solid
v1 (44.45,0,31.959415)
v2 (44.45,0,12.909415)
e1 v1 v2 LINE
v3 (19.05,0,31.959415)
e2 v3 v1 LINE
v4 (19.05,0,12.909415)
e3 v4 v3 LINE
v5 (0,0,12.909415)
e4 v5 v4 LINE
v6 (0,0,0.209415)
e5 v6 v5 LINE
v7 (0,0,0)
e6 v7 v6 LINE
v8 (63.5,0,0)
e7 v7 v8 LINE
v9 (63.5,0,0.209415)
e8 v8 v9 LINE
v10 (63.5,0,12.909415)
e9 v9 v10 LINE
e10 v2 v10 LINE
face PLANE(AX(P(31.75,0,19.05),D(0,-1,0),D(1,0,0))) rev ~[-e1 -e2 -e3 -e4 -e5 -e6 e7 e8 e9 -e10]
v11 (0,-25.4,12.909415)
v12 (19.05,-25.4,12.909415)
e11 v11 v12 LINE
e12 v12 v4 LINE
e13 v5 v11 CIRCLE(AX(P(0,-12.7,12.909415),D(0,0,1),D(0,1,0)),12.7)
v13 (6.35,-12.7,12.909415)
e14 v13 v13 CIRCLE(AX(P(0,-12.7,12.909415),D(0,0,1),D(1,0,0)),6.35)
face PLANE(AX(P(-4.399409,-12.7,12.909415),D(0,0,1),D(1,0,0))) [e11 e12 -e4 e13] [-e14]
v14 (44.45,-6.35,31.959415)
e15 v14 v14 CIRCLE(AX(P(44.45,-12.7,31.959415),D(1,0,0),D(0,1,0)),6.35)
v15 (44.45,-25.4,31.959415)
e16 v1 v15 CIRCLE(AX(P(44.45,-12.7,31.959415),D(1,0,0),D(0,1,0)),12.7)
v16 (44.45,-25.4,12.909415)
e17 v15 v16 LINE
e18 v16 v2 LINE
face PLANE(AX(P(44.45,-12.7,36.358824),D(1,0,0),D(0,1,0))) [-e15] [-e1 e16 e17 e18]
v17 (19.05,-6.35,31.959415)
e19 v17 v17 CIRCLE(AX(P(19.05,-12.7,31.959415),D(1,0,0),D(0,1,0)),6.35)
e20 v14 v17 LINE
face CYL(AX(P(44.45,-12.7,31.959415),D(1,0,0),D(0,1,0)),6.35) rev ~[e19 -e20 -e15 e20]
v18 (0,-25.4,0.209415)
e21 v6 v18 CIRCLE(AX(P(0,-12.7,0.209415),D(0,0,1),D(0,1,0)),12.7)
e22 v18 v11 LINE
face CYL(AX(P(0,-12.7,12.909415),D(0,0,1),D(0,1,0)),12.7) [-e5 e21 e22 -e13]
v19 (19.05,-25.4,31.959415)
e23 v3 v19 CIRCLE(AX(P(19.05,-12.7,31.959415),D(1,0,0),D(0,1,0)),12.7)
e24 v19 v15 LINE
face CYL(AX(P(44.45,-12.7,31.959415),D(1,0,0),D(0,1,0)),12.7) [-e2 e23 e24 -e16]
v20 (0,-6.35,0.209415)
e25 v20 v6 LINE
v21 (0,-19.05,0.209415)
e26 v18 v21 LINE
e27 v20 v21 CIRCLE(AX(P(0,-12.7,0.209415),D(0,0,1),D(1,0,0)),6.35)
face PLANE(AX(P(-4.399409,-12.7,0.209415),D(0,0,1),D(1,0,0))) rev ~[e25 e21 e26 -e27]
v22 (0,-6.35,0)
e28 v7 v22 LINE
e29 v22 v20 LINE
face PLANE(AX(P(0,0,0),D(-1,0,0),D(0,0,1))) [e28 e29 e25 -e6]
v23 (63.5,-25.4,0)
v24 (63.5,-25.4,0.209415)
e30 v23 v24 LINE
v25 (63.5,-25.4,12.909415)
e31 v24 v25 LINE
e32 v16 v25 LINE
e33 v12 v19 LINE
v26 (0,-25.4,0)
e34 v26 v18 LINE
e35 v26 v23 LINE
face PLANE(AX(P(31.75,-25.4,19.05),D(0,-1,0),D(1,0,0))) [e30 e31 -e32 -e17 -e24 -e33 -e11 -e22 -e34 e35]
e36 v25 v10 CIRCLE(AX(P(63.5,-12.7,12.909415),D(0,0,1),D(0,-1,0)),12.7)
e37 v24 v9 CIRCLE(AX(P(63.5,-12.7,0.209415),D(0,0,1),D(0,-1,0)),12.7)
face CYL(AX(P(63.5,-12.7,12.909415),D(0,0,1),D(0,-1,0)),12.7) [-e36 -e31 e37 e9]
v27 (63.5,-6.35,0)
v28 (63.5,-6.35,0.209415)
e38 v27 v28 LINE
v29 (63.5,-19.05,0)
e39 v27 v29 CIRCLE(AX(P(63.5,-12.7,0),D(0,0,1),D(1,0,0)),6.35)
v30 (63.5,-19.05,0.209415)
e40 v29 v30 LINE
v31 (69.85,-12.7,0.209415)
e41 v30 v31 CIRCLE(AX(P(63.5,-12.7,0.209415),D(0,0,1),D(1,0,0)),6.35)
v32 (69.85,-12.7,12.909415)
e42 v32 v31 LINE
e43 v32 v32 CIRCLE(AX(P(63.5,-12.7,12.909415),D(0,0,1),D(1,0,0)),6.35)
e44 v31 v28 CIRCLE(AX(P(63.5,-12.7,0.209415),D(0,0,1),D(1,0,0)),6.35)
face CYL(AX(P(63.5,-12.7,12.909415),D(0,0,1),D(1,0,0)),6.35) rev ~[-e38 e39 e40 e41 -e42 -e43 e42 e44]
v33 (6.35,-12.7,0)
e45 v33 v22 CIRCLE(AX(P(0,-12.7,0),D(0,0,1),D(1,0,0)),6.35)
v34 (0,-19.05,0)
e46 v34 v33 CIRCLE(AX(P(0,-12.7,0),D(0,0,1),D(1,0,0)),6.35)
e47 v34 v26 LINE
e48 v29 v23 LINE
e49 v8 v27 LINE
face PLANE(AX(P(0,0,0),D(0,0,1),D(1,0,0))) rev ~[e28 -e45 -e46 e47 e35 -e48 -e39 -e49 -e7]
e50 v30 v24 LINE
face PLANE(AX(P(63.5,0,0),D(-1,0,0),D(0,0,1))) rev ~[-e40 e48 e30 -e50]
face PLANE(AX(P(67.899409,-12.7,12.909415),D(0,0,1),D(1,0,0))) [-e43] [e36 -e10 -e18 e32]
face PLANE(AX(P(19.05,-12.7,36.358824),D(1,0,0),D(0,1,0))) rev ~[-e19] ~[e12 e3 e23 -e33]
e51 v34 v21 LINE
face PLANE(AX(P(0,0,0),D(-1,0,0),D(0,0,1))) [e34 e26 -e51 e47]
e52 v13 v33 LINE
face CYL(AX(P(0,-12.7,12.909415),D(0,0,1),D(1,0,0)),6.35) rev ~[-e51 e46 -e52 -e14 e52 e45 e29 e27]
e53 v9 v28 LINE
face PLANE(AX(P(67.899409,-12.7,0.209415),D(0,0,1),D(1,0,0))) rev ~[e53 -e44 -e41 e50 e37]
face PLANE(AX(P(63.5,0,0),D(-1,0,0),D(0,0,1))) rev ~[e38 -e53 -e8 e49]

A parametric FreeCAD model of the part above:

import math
import FreeCAD as App
import Part
import Sketcher
from FreeCAD import Vector
Q = App.Units.Quantity


def add_polygon(sketch, points):
    """Adds a closed chain of lines whose ends are joined by coincident constraints."""
    first, n = sketch.GeometryCount, len(points)
    for a, b in zip(points, points[1:] + points[:1]):
        sketch.addGeometry(Part.LineSegment(App.Vector(*a, 0), App.Vector(*b, 0)), False)
    for i in range(n):
        sketch.addConstraint(Sketcher.Constraint("Coincident", first + i, 2, first + (i + 1) % n, 1))

doc = App.newDocument("Part")
body = doc.addObject("PartDesign::Body", "Body")

# Sketch on XZ plane
sketch1 = body.newObject("Sketcher::SketchObject", "Sketch")
sketch1.AttachmentSupport = (doc.getObject("XZ_Plane"), [""])
sketch1.MapMode = "FlatFace"
add_polygon(sketch1, [(0, 38), (0, 0), (64, 0), (64, 38)])  # lines 0-3
sketch1.addConstraint([
    Sketcher.Constraint("Vertical", 0),
    Sketcher.Constraint("Horizontal", 1),
    Sketcher.Constraint("Vertical", 2),
    Sketcher.Constraint("Horizontal", 3),
    Sketcher.Constraint("Coincident", 0, 2, -1, 1),
    Sketcher.Constraint("DistanceX", 1, 1, 1, 2, Q("2.5 in")),
    Sketcher.Constraint("DistanceY", 0, 2, 0, 1, Q("1.5 in")),
])
pad1 = body.newObject("PartDesign::Pad", "Pad")
pad1.Profile = sketch1
pad1.Length = Q("1 in")

# Sketch on XZ plane
sketch2 = body.newObject("Sketcher::SketchObject", "Sketch001")
sketch2.AttachmentSupport = (doc.getObject("XZ_Plane"), [""])
sketch2.MapMode = "FlatFace"
sketch2.AttachmentOffset = App.Placement(Vector(0, 0, 1 * 25.4), App.Rotation())
add_polygon(sketch2, [(0, 38), (0, 13), (19, 13), (19, 32), (44, 32), (44, 13), (64, 13), (64, 38)])  # lines 0-7
sketch2.addConstraint([
    Sketcher.Constraint("Vertical", 0),
    Sketcher.Constraint("Horizontal", 1),
    Sketcher.Constraint("Vertical", 2),
    Sketcher.Constraint("Horizontal", 3),
    Sketcher.Constraint("Vertical", 4),
    Sketcher.Constraint("Horizontal", 5),
    Sketcher.Constraint("Vertical", 6),
    Sketcher.Constraint("Horizontal", 7),
    Sketcher.Constraint("PointOnObject", 0, 2, -2),
    Sketcher.Constraint("Horizontal", 1, 2, 4, 2),
    Sketcher.Constraint("Equal", 1, 5),
    Sketcher.Constraint("Equal", 5, 2),
    Sketcher.Constraint("DistanceX", 3, 1, 3, 2, Q("1 in")),
    Sketcher.Constraint("DistanceX", 7, 2, 7, 1, Q("2.5 in")),
    Sketcher.Constraint("DistanceY", -1, 1, 6, 2, Q("1.5 in")),
    Sketcher.Constraint("DistanceY", 0, 2, 0, 1, Q("25.190585 mm")),
])
pocket1 = body.newObject("PartDesign::Pocket", "Pocket")
pocket1.Profile = sketch2
pocket1.Length = Q("1 in")

# Sketch on YZ plane
sketch3 = body.newObject("Sketcher::SketchObject", "Sketch002")
sketch3.AttachmentSupport = (doc.getObject("YZ_Plane"), [""])
sketch3.MapMode = "FlatFace"
sketch3.AttachmentOffset = App.Placement(Vector(0, 0, 1.75 * 25.4), App.Rotation())
sketch3.addGeometry([
    Part.LineSegment(Vector(-25, 32, 0), Vector(0, 32, 0)),
    Part.ArcOfCircle(Part.Circle(Vector(-13, 32, 0), Vector(0, 0, 1), 13), math.radians(0), math.radians(180)),
], False)
sketch3.addConstraint([
    Sketcher.Constraint("Coincident", 0, 1, 1, 2),
    Sketcher.Constraint("Coincident", 1, 1, 0, 2),
    Sketcher.Constraint("Horizontal", 0),
    Sketcher.Constraint("PointOnObject", 1, 1, -2),
    Sketcher.Constraint("Horizontal", 1, 3, 0, 1),
    Sketcher.Constraint("Radius", 1, Q("0.5 in")),
    Sketcher.Constraint("DistanceY", -1, 1, 1, 3, Q("31.959415 mm")),
])
pad2 = body.newObject("PartDesign::Pad", "Pad001")
pad2.Profile = sketch3
pad2.Length = Q("1 in")
pad2.Reversed = True

# Sketch on XY plane
sketch4 = body.newObject("Sketcher::SketchObject", "Sketch003")
sketch4.AttachmentSupport = (doc.getObject("XY_Plane"), [""])
sketch4.MapMode = "FlatFace"
sketch4.AttachmentOffset = App.Placement(Vector(0, 0, 12.909415), App.Rotation())
sketch4.addGeometry([
    Part.LineSegment(Vector(0, -25, 0), Vector(0, 0, 0)),
    Part.ArcOfCircle(Part.Circle(Vector(0, -13, 0), Vector(0, 0, 1), 13), math.radians(90), math.radians(270)),
], False)
sketch4.addConstraint([
    Sketcher.Constraint("Coincident", 0, 1, 1, 2),
    Sketcher.Constraint("Coincident", 1, 1, 0, 2),
    Sketcher.Constraint("Vertical", 0),
    Sketcher.Constraint("Coincident", 1, 1, -1, 1),
    Sketcher.Constraint("PointOnObject", 1, 3, -2),
    Sketcher.Constraint("Radius", 1, Q("0.5 in")),
])
pad3 = body.newObject("PartDesign::Pad", "Pad002")
pad3.Profile = sketch4
pad3.Length = Q("0.5 in")
pad3.Reversed = True

# Sketch on XY plane
sketch5 = body.newObject("Sketcher::SketchObject", "Sketch004")
sketch5.AttachmentSupport = (doc.getObject("XY_Plane"), [""])
sketch5.MapMode = "FlatFace"
sketch5.AttachmentOffset = App.Placement(Vector(0, 0, 12.909415), App.Rotation())
sketch5.addGeometry([
    Part.LineSegment(Vector(64, 0, 0), Vector(64, -25, 0)),
    Part.ArcOfCircle(Part.Circle(Vector(64, -13, 0), Vector(0, 0, 1), 13), math.radians(-90), math.radians(90)),
], False)
sketch5.addConstraint([
    Sketcher.Constraint("Coincident", 0, 1, 1, 2),
    Sketcher.Constraint("Coincident", 1, 1, 0, 2),
    Sketcher.Constraint("Vertical", 0),
    Sketcher.Constraint("PointOnObject", 0, 1, -1),
    Sketcher.Constraint("Vertical", 1, 3, 0, 1),
    Sketcher.Constraint("Radius", 1, Q("0.5 in")),
    Sketcher.Constraint("DistanceX", -1, 1, 1, 3, Q("2.5 in")),
])
pad4 = body.newObject("PartDesign::Pad", "Pad003")
pad4.Profile = sketch5
pad4.Length = Q("0.5 in")
pad4.Reversed = True

# Sketch on YZ plane
sketch6 = body.newObject("Sketcher::SketchObject", "Sketch005")
sketch6.AttachmentSupport = (doc.getObject("YZ_Plane"), [""])
sketch6.MapMode = "FlatFace"
sketch6.AttachmentOffset = App.Placement(Vector(0, 0, 1.75 * 25.4), App.Rotation())
sketch6.addGeometry(Part.Circle(Vector(-13, 32, 0), Vector(0, 0, 1), 6), False)
sketch6.addConstraint([
    Sketcher.Constraint("Diameter", 0, Q("0.5 in")),
    Sketcher.Constraint("DistanceX", 0, 3, -1, 1, Q("0.5 in")),
    Sketcher.Constraint("DistanceY", -1, 1, 0, 3, Q("31.959415 mm")),
])
pocket2 = body.newObject("PartDesign::Pocket", "Pocket001")
pocket2.Profile = sketch6
pocket2.Length = Q("1 in")

# Sketch on XY plane
sketch7 = body.newObject("Sketcher::SketchObject", "Sketch006")
sketch7.AttachmentSupport = (doc.getObject("XY_Plane"), [""])
sketch7.MapMode = "FlatFace"
sketch7.AttachmentOffset = App.Placement(Vector(0, 0, 12.909415), App.Rotation())
sketch7.addGeometry(Part.Circle(Vector(64, -13, 0), Vector(0, 0, 1), 6), False)
sketch7.addConstraint([
    Sketcher.Constraint("Diameter", 0, Q("0.5 in")),
    Sketcher.Constraint("DistanceX", -1, 1, 0, 3, Q("2.5 in")),
    Sketcher.Constraint("DistanceY", 0, 3, -1, 1, Q("0.5 in")),
])
pocket3 = body.newObject("PartDesign::Pocket", "Pocket002")
pocket3.Profile = sketch7
pocket3.Length = Q("1 in")

# Sketch on XY plane
sketch8 = body.newObject("Sketcher::SketchObject", "Sketch007")
sketch8.AttachmentSupport = (doc.getObject("XY_Plane"), [""])
sketch8.MapMode = "FlatFace"
sketch8.AttachmentOffset = App.Placement(Vector(0, 0, 12.909415), App.Rotation())
sketch8.addGeometry(Part.Circle(Vector(0, -13, 0), Vector(0, 0, 1), 6), False)
sketch8.addConstraint([
    Sketcher.Constraint("PointOnObject", 0, 3, -2),
    Sketcher.Constraint("Diameter", 0, Q("0.5 in")),
    Sketcher.Constraint("DistanceY", 0, 3, -1, 1, Q("0.5 in")),
])
pocket4 = body.newObject("PartDesign::Pocket", "Pocket003")
pocket4.Profile = sketch8
pocket4.Length = Q("1 in")

doc.recompute()
